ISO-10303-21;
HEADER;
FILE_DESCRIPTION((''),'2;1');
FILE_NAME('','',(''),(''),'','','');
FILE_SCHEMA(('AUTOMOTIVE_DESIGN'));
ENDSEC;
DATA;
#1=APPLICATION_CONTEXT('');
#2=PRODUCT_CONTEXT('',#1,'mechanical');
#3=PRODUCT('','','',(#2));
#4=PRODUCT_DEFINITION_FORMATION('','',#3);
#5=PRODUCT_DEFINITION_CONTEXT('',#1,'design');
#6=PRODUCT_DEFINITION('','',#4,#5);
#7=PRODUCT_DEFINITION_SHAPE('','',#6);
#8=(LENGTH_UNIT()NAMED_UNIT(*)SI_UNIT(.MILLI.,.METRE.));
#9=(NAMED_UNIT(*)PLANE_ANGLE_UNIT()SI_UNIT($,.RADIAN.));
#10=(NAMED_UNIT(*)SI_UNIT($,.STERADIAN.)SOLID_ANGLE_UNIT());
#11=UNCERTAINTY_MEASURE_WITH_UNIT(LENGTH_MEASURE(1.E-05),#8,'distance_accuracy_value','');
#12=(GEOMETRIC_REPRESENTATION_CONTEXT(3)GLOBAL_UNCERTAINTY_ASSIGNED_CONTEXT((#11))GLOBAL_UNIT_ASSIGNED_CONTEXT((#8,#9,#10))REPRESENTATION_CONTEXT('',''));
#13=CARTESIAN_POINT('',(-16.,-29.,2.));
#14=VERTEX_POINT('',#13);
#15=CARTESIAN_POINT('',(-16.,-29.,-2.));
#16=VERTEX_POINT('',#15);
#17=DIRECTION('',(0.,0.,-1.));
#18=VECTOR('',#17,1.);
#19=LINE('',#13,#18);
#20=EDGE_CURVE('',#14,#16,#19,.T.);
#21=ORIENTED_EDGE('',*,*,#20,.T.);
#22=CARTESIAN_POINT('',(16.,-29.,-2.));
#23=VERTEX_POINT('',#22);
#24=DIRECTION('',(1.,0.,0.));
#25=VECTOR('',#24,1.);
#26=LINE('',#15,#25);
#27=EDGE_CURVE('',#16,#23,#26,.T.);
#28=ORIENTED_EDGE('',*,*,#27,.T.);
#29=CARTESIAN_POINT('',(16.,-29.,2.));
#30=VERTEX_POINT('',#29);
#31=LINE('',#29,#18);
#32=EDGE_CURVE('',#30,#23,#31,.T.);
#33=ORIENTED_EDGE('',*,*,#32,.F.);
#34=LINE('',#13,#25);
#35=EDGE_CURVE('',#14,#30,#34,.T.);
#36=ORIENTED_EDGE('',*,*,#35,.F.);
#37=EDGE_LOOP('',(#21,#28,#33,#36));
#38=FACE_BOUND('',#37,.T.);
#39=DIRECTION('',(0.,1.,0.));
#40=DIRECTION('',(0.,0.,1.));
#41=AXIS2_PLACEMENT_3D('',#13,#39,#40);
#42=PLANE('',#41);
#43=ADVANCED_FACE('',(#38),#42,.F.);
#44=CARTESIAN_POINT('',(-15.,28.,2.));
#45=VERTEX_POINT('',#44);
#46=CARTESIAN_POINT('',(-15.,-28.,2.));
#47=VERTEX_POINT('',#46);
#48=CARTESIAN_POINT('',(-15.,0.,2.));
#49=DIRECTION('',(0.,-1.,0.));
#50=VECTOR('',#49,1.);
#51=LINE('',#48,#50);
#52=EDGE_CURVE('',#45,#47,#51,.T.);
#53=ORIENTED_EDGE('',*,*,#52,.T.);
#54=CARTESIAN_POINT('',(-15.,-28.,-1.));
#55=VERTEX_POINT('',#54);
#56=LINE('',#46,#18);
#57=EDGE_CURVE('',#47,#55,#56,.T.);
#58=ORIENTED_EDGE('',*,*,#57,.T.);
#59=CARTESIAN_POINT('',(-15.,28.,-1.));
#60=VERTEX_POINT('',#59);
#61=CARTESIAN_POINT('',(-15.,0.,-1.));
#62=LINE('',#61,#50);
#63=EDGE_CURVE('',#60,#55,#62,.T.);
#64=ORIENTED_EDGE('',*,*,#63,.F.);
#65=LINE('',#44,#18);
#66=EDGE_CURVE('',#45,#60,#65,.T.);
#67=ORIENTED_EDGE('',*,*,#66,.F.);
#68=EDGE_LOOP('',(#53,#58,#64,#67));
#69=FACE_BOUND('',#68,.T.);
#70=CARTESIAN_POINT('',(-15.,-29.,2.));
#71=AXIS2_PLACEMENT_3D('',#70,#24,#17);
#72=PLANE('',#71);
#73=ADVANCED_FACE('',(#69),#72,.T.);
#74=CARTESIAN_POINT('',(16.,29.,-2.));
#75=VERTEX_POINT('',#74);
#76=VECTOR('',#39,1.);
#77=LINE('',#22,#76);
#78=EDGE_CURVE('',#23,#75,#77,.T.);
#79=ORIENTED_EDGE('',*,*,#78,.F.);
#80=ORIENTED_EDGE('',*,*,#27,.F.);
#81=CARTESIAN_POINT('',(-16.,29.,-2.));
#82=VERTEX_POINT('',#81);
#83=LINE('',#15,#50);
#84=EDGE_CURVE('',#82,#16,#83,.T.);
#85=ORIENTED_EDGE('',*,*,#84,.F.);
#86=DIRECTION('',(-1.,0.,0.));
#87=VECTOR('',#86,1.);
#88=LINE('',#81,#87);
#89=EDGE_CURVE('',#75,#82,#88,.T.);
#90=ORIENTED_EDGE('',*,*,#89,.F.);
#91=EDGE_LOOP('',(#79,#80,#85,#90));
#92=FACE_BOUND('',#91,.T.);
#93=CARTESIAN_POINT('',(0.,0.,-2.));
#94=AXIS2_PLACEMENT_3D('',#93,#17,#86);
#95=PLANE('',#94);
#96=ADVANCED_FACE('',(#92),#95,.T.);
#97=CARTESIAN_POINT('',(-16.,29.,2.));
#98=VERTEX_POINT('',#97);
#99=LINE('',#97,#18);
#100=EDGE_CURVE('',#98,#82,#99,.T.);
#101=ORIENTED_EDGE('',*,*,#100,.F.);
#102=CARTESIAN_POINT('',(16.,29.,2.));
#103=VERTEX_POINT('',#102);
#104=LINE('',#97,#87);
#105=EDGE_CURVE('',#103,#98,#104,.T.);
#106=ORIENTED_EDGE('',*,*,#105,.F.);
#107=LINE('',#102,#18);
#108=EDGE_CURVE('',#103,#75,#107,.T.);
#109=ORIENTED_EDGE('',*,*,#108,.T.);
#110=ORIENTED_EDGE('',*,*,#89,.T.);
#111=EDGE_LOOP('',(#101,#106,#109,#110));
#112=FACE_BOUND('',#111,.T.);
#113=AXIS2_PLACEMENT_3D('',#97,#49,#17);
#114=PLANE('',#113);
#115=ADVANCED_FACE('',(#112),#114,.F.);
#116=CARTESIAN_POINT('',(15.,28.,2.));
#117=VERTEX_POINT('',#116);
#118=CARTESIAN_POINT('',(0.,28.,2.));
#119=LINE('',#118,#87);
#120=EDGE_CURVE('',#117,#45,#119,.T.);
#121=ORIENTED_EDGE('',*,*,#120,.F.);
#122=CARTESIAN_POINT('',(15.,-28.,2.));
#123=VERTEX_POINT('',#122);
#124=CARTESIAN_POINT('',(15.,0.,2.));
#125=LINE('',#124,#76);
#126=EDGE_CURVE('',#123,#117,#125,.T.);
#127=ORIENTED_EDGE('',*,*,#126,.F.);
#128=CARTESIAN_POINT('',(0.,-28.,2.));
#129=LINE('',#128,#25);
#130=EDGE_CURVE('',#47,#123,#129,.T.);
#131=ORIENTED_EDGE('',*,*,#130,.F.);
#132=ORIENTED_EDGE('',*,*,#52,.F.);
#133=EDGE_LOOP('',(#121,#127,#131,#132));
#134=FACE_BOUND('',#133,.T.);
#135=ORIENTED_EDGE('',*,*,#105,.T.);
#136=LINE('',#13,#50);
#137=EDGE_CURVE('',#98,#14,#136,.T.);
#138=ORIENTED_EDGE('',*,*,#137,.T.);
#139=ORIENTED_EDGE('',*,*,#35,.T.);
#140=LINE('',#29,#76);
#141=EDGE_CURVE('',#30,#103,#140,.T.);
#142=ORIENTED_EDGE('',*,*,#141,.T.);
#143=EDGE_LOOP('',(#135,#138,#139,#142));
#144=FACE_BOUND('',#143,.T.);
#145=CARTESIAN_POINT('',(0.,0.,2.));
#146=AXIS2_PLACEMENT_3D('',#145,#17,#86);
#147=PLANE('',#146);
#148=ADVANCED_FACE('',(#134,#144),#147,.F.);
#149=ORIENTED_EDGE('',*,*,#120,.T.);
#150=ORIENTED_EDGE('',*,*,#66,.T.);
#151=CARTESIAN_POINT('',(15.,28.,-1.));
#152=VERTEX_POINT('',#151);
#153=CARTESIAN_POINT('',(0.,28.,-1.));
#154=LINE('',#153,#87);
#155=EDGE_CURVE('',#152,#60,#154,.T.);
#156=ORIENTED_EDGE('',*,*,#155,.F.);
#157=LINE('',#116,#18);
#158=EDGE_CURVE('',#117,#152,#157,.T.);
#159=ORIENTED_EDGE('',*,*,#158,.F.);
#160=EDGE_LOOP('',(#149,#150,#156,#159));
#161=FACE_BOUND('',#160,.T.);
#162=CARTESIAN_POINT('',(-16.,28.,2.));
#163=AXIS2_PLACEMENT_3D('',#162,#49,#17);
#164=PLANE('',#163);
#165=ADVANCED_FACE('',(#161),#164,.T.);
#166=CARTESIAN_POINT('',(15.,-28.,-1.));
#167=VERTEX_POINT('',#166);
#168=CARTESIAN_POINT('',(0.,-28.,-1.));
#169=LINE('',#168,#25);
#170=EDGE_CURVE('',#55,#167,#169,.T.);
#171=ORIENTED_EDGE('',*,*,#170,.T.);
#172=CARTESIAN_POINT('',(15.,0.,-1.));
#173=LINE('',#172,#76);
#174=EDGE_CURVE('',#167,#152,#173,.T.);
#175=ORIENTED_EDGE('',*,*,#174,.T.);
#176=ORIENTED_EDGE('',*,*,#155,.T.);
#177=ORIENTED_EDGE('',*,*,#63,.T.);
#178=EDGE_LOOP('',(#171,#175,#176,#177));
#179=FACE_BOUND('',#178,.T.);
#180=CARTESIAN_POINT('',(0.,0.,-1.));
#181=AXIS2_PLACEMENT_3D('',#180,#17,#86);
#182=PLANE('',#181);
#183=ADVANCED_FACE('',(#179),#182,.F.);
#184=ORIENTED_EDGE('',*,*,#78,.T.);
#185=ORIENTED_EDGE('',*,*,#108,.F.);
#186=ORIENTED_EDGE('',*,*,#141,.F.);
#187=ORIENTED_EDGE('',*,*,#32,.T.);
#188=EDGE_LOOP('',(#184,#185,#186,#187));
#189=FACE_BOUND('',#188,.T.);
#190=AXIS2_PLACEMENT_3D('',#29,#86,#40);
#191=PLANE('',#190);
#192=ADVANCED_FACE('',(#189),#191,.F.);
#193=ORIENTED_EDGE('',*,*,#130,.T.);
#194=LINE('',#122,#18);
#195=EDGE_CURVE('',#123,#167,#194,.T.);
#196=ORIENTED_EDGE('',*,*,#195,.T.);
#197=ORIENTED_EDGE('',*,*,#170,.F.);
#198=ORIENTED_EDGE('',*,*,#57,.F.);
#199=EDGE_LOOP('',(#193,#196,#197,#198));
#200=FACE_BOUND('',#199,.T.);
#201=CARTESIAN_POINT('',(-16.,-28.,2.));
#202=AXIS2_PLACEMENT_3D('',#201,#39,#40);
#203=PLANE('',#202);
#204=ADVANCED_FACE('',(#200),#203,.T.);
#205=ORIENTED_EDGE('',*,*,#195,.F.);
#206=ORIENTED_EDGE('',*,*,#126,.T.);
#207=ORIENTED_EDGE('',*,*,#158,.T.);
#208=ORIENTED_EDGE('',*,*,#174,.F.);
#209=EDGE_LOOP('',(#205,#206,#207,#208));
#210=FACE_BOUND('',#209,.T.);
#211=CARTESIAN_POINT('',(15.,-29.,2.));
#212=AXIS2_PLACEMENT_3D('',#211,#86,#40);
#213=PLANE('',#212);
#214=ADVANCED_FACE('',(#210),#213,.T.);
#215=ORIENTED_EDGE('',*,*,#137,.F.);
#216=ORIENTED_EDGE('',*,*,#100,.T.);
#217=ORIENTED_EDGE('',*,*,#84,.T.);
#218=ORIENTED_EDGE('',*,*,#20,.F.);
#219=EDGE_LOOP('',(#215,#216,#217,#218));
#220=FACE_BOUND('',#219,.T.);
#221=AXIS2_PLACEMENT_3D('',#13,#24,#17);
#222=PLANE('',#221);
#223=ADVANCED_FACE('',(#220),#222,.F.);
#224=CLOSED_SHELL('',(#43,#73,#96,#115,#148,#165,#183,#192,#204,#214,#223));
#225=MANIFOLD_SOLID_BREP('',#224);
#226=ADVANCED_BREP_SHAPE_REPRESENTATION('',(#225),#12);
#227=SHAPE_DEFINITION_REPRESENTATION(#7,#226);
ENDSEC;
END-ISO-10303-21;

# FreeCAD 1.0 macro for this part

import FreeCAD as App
import Part
import Sketcher
from FreeCAD import Vector
Q = App.Units.Quantity


def faces_at(feature, points):
    """Names of the faces that lie closest to the given points."""
    faces = feature.Shape.Faces
    near = lambda p: min(range(len(faces)), key=lambda i: faces[i].distToShape(Part.Vertex(*p))[0])
    return sorted({f"Face{near(p) + 1}" for p in points})

doc = App.newDocument("Part")
body = doc.addObject("PartDesign::Body", "Body")

sketch1 = body.newObject("Sketcher::SketchObject", "Sketch")
sketch1.AttachmentSupport = (doc.getObject("XY_Plane"), [""])
sketch1.MapMode = "FlatFace"
sketch1.addGeometry(Part.LineSegment(Vector(-16, 29, 0), Vector(-16, -29, 0)), False)
sketch1.addGeometry(Part.LineSegment(Vector(-16, -29, 0), Vector(16, -29, 0)), False)
sketch1.addGeometry(Part.LineSegment(Vector(16, -29, 0), Vector(16, 29, 0)), False)
sketch1.addGeometry(Part.LineSegment(Vector(16, 29, 0), Vector(-16, 29, 0)), False)
sketch1.addConstraint(Sketcher.Constraint("Coincident", 0, 2, 1, 1))
sketch1.addConstraint(Sketcher.Constraint("Coincident", 1, 2, 2, 1))
sketch1.addConstraint(Sketcher.Constraint("Coincident", 2, 2, 3, 1))
sketch1.addConstraint(Sketcher.Constraint("Coincident", 3, 2, 0, 1))
sketch1.addConstraint(Sketcher.Constraint("Vertical", 0))
sketch1.addConstraint(Sketcher.Constraint("Horizontal", 1))
sketch1.addConstraint(Sketcher.Constraint("Vertical", 2))
sketch1.addConstraint(Sketcher.Constraint("Horizontal", 3))
sketch1.addConstraint(Sketcher.Constraint("Symmetric", 0, 2, 2, 2, -1, 1))
sketch1.addConstraint(Sketcher.Constraint("DistanceX", 1, 1, 1, 2, Q("32 mm")))
sketch1.addConstraint(Sketcher.Constraint("DistanceY", 0, 2, 0, 1, Q("58 mm")))
pad1 = body.newObject("PartDesign::Pad", "Pad")
pad1.Profile = sketch1
pad1.Length = 4
pad1.Midplane = True
doc.recompute()

thickness = body.newObject("PartDesign::Thickness", "Thickness")
thickness.Base = (pad1, faces_at(pad1, [(0, 0, 2)]))
thickness.Value = 1
thickness.Reversed = True
thickness.Join = "Intersection"

doc.recompute()
